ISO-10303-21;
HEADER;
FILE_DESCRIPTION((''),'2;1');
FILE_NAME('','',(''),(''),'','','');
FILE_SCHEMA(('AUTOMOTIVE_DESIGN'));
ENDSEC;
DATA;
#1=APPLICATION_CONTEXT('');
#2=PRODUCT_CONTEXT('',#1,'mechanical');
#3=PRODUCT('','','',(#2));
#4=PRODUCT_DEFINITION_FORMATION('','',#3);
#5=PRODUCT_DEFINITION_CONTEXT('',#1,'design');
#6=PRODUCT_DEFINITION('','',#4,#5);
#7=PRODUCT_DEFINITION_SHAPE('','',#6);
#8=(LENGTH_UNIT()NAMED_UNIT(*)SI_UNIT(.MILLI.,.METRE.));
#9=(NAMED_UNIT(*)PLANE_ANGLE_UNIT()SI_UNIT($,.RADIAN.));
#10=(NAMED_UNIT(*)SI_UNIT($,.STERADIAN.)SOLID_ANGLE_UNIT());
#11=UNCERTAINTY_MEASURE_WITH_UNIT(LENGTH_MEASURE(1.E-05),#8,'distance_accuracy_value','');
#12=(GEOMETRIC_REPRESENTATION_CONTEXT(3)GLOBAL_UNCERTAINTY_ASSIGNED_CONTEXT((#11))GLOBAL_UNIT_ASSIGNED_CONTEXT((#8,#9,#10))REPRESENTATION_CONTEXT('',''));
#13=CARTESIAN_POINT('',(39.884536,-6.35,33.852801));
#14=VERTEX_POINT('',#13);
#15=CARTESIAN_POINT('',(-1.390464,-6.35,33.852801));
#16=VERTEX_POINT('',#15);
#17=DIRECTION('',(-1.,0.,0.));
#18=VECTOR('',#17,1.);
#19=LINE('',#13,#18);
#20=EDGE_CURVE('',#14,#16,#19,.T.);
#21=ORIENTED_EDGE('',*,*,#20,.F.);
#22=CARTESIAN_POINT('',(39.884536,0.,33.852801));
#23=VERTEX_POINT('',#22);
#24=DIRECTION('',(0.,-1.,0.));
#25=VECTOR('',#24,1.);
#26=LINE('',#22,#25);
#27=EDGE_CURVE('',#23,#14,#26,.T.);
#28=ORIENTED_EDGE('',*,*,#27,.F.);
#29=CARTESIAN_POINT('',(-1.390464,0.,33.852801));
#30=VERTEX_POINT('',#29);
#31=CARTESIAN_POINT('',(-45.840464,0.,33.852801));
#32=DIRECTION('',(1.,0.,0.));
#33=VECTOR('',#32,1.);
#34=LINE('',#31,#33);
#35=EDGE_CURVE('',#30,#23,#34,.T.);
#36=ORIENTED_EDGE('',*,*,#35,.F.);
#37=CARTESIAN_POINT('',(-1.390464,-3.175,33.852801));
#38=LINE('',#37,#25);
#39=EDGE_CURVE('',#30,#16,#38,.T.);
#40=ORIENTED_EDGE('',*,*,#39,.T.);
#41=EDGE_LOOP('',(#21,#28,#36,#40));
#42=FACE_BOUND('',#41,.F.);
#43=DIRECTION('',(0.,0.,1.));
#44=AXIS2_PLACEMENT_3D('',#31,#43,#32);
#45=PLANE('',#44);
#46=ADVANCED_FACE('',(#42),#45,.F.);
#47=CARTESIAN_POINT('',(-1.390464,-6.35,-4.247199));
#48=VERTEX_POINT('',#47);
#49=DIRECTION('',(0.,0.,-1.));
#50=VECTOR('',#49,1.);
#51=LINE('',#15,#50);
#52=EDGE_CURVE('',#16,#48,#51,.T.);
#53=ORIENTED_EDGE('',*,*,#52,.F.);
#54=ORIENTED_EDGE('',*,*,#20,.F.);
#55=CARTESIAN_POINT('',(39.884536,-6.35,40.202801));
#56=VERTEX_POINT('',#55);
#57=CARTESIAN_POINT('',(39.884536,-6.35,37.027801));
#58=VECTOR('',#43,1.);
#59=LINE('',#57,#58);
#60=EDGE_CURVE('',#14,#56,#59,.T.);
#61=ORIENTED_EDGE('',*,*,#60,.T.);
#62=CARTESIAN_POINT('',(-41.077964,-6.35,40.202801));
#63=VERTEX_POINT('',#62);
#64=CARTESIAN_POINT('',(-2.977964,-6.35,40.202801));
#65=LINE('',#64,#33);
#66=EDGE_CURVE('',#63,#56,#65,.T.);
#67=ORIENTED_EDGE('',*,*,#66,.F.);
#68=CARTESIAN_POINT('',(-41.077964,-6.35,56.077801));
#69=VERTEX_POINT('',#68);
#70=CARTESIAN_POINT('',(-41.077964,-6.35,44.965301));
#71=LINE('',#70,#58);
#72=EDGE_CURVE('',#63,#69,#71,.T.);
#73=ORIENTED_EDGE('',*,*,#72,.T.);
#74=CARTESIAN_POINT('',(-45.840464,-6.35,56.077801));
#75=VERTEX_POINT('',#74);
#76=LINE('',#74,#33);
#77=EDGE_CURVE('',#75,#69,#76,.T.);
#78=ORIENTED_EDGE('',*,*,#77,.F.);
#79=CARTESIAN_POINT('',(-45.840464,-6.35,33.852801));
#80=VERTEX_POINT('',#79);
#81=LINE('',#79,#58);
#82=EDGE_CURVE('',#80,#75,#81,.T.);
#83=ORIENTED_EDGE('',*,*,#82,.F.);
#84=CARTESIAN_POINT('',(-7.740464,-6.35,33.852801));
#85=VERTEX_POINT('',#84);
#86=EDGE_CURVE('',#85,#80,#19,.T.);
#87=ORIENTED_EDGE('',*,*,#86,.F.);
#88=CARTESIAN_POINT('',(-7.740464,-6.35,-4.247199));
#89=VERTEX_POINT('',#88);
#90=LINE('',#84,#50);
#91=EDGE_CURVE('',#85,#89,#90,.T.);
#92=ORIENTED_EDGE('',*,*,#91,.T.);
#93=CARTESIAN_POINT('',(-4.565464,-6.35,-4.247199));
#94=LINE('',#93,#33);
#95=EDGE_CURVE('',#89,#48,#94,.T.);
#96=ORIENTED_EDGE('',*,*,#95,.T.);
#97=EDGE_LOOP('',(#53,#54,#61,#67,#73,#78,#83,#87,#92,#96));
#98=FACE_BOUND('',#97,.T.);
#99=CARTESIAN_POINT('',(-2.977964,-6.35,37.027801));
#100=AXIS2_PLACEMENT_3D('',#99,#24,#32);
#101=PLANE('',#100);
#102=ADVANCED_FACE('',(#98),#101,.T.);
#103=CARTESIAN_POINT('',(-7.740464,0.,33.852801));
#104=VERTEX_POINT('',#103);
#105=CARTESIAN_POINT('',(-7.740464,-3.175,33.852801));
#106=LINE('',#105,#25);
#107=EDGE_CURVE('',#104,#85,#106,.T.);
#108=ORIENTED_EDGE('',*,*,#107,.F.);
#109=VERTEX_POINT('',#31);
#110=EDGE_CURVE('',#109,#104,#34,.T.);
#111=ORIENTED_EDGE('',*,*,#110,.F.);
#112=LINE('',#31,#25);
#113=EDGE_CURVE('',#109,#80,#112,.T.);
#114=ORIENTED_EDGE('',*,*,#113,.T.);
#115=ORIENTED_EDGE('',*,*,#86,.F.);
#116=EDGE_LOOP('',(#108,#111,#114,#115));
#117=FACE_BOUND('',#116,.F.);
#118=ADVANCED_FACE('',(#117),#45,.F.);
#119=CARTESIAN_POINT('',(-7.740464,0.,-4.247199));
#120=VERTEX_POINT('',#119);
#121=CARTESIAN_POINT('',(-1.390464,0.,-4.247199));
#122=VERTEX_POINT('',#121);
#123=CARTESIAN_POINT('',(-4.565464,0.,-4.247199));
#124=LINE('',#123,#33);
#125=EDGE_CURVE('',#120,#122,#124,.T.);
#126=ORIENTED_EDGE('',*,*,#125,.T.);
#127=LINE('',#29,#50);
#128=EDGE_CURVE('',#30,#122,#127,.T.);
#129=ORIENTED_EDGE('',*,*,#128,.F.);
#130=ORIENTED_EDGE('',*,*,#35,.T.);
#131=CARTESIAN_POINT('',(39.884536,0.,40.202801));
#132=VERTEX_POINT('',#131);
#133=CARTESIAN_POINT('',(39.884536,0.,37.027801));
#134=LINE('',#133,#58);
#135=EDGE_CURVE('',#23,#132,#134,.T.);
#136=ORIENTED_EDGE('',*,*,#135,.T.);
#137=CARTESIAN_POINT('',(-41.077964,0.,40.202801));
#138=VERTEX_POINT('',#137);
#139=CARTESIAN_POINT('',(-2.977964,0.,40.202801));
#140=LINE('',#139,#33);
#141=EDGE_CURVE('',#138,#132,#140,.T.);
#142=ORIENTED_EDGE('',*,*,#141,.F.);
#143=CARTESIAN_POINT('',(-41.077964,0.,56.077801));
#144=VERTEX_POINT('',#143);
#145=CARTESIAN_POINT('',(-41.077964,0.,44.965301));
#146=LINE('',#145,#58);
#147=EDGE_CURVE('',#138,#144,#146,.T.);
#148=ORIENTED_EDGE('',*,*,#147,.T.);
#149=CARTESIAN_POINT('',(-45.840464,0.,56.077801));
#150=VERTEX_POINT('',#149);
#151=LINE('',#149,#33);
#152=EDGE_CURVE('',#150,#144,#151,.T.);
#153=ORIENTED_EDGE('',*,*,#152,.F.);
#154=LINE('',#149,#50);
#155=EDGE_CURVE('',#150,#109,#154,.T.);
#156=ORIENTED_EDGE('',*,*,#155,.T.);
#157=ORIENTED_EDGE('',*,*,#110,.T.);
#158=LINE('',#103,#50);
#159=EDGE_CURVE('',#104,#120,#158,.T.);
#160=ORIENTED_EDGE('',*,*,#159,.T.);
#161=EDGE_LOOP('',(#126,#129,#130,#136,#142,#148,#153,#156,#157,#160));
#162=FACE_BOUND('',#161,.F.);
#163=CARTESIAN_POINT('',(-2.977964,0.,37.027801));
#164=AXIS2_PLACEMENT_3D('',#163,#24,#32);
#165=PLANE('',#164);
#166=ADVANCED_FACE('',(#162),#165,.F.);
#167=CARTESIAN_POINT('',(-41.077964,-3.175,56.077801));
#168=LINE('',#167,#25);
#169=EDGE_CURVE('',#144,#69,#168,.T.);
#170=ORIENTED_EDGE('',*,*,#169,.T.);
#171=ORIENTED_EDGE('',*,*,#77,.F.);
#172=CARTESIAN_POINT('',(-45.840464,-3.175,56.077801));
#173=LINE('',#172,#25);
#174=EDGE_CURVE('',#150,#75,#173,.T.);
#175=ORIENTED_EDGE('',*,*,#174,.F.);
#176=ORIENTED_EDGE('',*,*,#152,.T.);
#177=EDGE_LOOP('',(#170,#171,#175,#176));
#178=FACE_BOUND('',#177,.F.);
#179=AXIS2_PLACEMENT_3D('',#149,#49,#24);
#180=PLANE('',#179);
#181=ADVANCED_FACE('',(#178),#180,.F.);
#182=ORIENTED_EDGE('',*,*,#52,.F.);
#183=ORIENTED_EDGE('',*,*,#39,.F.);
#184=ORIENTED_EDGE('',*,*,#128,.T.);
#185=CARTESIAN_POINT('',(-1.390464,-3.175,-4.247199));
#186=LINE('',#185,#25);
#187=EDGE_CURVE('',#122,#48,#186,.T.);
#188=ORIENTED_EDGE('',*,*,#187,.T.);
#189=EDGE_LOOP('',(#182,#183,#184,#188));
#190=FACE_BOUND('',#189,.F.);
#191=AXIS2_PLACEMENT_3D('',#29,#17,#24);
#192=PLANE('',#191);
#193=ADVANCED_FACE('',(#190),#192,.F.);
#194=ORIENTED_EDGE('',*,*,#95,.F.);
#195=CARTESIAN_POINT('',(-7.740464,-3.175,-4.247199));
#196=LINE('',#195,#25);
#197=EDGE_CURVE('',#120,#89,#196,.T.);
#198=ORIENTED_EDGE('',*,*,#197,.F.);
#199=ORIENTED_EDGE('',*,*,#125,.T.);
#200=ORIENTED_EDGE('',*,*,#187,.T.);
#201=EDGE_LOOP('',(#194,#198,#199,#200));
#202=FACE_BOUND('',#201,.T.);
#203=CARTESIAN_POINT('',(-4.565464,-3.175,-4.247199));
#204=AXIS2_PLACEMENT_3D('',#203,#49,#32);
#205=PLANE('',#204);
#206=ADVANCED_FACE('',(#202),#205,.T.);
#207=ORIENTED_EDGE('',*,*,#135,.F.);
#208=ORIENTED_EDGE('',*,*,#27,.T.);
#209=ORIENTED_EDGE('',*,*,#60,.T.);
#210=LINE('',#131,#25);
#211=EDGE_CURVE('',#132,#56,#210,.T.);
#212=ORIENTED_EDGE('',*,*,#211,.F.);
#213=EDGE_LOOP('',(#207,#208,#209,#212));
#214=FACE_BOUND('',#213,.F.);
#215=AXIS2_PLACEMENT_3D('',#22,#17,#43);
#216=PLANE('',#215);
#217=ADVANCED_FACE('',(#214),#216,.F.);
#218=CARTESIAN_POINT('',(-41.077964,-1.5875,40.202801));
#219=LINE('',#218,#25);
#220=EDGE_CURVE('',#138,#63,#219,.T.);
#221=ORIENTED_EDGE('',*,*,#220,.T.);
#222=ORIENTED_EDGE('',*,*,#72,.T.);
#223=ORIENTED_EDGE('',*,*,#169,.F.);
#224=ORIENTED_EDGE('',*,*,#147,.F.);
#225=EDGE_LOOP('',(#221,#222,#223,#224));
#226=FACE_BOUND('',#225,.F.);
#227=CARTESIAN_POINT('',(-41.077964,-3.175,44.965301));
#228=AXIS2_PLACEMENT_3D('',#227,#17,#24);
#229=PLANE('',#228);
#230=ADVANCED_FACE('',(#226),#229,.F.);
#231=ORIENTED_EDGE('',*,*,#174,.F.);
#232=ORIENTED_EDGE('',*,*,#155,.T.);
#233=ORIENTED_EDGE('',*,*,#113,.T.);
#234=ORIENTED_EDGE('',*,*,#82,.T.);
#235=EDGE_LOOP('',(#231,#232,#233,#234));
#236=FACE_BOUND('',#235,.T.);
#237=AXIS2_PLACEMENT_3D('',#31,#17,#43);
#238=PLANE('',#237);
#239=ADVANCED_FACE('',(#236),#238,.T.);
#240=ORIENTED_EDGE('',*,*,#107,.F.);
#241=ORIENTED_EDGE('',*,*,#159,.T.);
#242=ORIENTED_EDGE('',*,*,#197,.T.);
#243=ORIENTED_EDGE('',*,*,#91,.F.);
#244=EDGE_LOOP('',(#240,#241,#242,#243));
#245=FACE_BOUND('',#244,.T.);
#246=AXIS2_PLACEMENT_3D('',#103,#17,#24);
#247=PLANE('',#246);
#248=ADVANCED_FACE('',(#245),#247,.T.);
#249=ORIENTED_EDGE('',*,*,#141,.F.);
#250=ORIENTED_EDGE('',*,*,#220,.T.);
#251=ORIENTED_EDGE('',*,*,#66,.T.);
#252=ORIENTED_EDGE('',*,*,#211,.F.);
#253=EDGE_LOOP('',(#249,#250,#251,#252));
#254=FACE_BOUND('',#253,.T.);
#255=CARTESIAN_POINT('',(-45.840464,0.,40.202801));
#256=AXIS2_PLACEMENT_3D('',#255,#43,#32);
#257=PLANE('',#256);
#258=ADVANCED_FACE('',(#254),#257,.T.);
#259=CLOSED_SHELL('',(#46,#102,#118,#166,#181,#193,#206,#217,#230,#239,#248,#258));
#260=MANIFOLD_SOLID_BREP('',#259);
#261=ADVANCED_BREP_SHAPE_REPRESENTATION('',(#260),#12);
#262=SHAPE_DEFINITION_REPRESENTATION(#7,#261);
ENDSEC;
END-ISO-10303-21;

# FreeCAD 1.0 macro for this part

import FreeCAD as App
import Part
import Sketcher
from FreeCAD import Vector
Q = App.Units.Quantity

doc = App.newDocument("Part")
body = doc.addObject("PartDesign::Body", "Body")

sketch1 = doc.addObject("Sketcher::SketchObject", "Sketch")
body.addObject(sketch1)
sketch1.AttachmentSupport = (doc.XZ_Plane, [""])
sketch1.MapMode = "FlatFace"
sketch1.addGeometry([
    Part.LineSegment(Vector(-45.840464, 40.202801, 0), Vector(-45.840464, 33.852801, 0)),
    Part.LineSegment(Vector(-45.840464, 33.852801, 0), Vector(39.884536, 33.852801, 0)),
    Part.LineSegment(Vector(39.884536, 33.852801, 0), Vector(39.884536, 40.202801, 0)),
    Part.LineSegment(Vector(39.884536, 40.202801, 0), Vector(-45.840464, 40.202801, 0)),
], False)
sketch1.addConstraint([
    Sketcher.Constraint("Coincident", 0, 2, 1, 1),
    Sketcher.Constraint("Coincident", 1, 2, 2, 1),
    Sketcher.Constraint("Coincident", 2, 2, 3, 1),
    Sketcher.Constraint("Coincident", 3, 2, 0, 1),
    Sketcher.Constraint("Vertical", 0),
    Sketcher.Constraint("Horizontal", 1),
    Sketcher.Constraint("Vertical", 2),
    Sketcher.Constraint("Horizontal", 3),
    Sketcher.Constraint("DistanceY", 0, 2, 0, 1, Q("0.25 in")),
    Sketcher.Constraint("DistanceX", 1, 1, 1, 2, Q("3.375 in")),
    Sketcher.Constraint("DistanceY", -1, 1, 0, 2, 33.852801),
    Sketcher.Constraint("DistanceX", 0, 2, -1, 1, 45.840464),
])
pad1 = doc.addObject("PartDesign::Pad", "Pad")
body.addObject(pad1)
pad1.Profile = sketch1
pad1.Length = Q("0.25 in")

sketch2 = doc.addObject("Sketcher::SketchObject", "Sketch001")
body.addObject(sketch2)
sketch2.AttachmentSupport = (doc.YZ_Plane, [""])
sketch2.MapMode = "FlatFace"
sketch2.AttachmentOffset = App.Placement(Vector(0, 0, -45.840464), App.Rotation())
sketch2.addGeometry([
    Part.LineSegment(Vector(0, 56.077801, 0), Vector(0, 33.852801, 0)),
    Part.LineSegment(Vector(0, 33.852801, 0), Vector(-6.35, 33.852801, 0)),
    Part.LineSegment(Vector(-6.35, 33.852801, 0), Vector(-6.35, 56.077801, 0)),
    Part.LineSegment(Vector(-6.35, 56.077801, 0), Vector(0, 56.077801, 0)),
], False)
sketch2.addConstraint([
    Sketcher.Constraint("Coincident", 0, 2, 1, 1),
    Sketcher.Constraint("Coincident", 1, 2, 2, 1),
    Sketcher.Constraint("Coincident", 2, 2, 3, 1),
    Sketcher.Constraint("Coincident", 3, 2, 0, 1),
    Sketcher.Constraint("Vertical", 0),
    Sketcher.Constraint("Horizontal", 1),
    Sketcher.Constraint("Vertical", 2),
    Sketcher.Constraint("Horizontal", 3),
    Sketcher.Constraint("PointOnObject", 0, 2, -2),
    Sketcher.Constraint("DistanceX", 1, 2, 1, 1, Q("0.25 in")),
    Sketcher.Constraint("DistanceY", 0, 2, 0, 1, Q("0.875 in")),
    Sketcher.Constraint("DistanceY", -1, 1, 0, 2, 33.852801),
])
pad2 = doc.addObject("PartDesign::Pad", "Pad001")
body.addObject(pad2)
pad2.Profile = sketch2
pad2.Length = Q("0.1875 in")

sketch3 = doc.addObject("Sketcher::SketchObject", "Sketch002")
body.addObject(sketch3)
sketch3.AttachmentSupport = (doc.XY_Plane, [""])
sketch3.MapMode = "FlatFace"
sketch3.AttachmentOffset = App.Placement(Vector(0, 0, 33.852801), App.Rotation())
sketch3.addGeometry([
    Part.LineSegment(Vector(-7.740464, -6.35, 0), Vector(-7.740464, 0, 0)),
    Part.LineSegment(Vector(-7.740464, 0, 0), Vector(-1.390464, 0, 0)),
    Part.LineSegment(Vector(-1.390464, 0, 0), Vector(-1.390464, -6.35, 0)),
    Part.LineSegment(Vector(-1.390464, -6.35, 0), Vector(-7.740464, -6.35, 0)),
], False)
sketch3.addConstraint([
    Sketcher.Constraint("Coincident", 0, 2, 1, 1),
    Sketcher.Constraint("Coincident", 1, 2, 2, 1),
    Sketcher.Constraint("Coincident", 2, 2, 3, 1),
    Sketcher.Constraint("Coincident", 3, 2, 0, 1),
    Sketcher.Constraint("Vertical", 0),
    Sketcher.Constraint("Horizontal", 1),
    Sketcher.Constraint("Vertical", 2),
    Sketcher.Constraint("Horizontal", 3),
    Sketcher.Constraint("PointOnObject", 0, 2, -1),
    Sketcher.Constraint("Equal", 3, 0),
    Sketcher.Constraint("DistanceX", 1, 1, 1, 2, Q("0.25 in")),
    Sketcher.Constraint("DistanceX", 0, 2, -1, 1, 7.740464),
])
pad3 = doc.addObject("PartDesign::Pad", "Pad002")
body.addObject(pad3)
pad3.Profile = sketch3
pad3.Length = Q("1.5 in")
pad3.Reversed = True

doc.recompute()
